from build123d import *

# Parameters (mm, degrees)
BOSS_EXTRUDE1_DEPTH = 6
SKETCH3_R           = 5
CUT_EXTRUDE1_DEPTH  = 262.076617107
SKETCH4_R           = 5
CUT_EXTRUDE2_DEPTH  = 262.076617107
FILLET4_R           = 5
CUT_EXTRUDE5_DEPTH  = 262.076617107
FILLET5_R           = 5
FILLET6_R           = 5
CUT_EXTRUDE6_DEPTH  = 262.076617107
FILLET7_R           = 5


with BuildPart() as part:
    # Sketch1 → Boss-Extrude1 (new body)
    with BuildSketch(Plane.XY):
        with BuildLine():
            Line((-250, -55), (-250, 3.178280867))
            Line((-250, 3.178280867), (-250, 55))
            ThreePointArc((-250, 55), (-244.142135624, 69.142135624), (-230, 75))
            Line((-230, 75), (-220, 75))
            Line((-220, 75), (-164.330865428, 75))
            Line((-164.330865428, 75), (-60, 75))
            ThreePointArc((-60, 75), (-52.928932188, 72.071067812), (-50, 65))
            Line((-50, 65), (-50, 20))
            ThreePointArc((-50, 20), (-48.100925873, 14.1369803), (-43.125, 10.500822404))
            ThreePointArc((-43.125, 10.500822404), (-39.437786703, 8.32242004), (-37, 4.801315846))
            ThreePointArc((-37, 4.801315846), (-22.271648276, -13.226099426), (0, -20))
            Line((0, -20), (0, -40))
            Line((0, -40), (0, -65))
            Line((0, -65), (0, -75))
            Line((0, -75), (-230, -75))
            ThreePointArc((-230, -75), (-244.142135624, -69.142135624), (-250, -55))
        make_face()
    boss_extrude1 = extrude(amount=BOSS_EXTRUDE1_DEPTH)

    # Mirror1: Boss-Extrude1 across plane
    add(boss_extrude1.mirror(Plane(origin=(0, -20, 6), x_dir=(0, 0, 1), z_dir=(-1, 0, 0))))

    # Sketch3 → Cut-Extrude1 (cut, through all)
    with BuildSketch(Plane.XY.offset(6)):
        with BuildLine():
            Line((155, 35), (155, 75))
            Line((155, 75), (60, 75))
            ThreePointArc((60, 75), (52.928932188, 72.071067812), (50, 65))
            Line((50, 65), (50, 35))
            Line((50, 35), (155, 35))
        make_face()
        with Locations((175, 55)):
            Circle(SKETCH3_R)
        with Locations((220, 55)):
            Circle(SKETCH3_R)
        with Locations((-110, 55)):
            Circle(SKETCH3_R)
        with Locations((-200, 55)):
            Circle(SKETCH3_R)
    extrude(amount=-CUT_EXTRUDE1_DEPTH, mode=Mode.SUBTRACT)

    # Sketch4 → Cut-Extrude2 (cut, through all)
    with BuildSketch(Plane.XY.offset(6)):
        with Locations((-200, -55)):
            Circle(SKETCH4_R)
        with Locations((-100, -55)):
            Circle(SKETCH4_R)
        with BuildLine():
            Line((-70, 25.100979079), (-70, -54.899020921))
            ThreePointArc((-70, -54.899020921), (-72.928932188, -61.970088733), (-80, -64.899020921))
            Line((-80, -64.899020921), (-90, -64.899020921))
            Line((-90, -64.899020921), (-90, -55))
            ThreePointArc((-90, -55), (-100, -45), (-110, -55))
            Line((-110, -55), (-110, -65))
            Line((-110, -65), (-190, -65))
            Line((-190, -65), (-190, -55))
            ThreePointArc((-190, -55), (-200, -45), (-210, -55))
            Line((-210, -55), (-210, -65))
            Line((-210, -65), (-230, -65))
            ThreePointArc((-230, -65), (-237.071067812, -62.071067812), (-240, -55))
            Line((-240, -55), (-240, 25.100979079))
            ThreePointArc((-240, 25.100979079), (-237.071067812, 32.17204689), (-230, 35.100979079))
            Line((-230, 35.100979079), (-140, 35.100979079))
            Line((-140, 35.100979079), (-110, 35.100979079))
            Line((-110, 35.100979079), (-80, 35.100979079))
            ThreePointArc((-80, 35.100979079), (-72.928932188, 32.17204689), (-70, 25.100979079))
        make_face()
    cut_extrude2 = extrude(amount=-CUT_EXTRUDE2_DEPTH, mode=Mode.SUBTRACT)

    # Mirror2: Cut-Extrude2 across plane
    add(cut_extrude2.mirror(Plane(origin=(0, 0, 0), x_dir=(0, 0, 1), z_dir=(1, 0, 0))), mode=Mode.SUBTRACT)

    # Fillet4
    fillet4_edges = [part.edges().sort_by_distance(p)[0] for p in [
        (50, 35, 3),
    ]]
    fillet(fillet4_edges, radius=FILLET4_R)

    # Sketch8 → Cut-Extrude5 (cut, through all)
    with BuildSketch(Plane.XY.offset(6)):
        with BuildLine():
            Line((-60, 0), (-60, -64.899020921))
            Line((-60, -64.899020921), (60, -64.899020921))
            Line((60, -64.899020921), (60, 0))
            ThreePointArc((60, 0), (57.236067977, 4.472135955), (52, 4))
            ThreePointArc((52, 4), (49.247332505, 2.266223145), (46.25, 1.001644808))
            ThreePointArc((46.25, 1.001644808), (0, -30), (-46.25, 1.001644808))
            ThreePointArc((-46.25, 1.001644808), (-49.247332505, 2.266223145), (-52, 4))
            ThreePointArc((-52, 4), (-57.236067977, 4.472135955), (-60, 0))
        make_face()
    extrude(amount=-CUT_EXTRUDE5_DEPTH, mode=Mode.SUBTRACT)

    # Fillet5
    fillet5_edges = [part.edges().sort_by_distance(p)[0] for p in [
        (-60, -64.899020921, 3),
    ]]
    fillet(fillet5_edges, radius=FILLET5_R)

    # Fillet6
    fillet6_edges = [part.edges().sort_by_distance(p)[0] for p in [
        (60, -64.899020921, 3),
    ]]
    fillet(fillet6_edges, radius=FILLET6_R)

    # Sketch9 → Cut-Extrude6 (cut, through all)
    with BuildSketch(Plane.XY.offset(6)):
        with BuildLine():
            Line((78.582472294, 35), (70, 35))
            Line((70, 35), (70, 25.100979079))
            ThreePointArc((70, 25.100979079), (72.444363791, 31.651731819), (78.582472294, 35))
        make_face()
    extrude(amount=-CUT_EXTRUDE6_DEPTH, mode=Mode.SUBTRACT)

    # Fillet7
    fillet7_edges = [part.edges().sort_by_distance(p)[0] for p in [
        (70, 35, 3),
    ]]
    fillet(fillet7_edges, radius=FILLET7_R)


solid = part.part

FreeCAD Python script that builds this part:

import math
import FreeCAD as App
import Part
import Sketcher


def edges_at(feature, points):
    """Names of the edges that pass closest to the given points."""
    edges = feature.Shape.Edges
    near = lambda p: min(range(len(edges)), key=lambda i: edges[i].distToShape(Part.Vertex(*p))[0])
    return sorted({f"Edge{near(p) + 1}" for p in points})

doc = App.newDocument("Part")
params = doc.addObject("Spreadsheet::Sheet", "Params")
for row, (alias, value) in enumerate([
    ("sketch1_radius", "20 mm"),
    ("sketch1_radius2", "40 mm"),
    ("sketch1_radius3", "10 mm"),
    ("sketch1_width", "230 mm"),
    ("sketch1_width2", "170 mm"),
    ("pad1_length", "6 mm"),
    ("sketch2_diameter", "10 mm"),
    ("sketch2_radius", "10 mm"),
    ("sketch2_width", "95 mm"),
    ("sketch2_height", "40 mm"),
    ("sketch3_diameter", "10 mm"),
    ("sketch3_radius", "10 mm"),
    ("sketch3_width", "150 mm"),
    ("sketch3_width2", "20 mm"),
    ("fillet_radius", "5 mm"),
    ("sketch4_radius", "5 mm"),
    ("sketch4_radius2", "20 mm"),
    ("sketch4_radius3", "50 mm"),
    ("sketch4_width", "120 mm"),
    ("fillet2_radius", "5 mm"),
    ("fillet3_radius", "5 mm"),
    ("sketch5_radius", "10 mm"),
    ("fillet4_radius", "5 mm"),
], start=1):
    params.set(f"A{row}", alias)
    params.set(f"B{row}", "=" + value)
    params.setAlias(f"B{row}", alias)

body = doc.addObject("PartDesign::Body", "Body")

sketch1 = doc.addObject("Sketcher::SketchObject", "Sketch")
body.addObject(sketch1)
sketch1.AttachmentSupport = (doc.XY_Plane, [""])
sketch1.MapMode = "FlatFace"
sketch1.addGeometry([
    Part.LineSegment(App.Vector(-250, 55, 0), App.Vector(-250, -55, 0)),
    Part.ArcOfCircle(Part.Circle(App.Vector(-230, -55, 0), App.Vector(0, 0, 1), 20), math.radians(180), math.radians(270)),
    Part.LineSegment(App.Vector(-230, -75, 0), App.Vector(0, -75, 0)),
    Part.LineSegment(App.Vector(0, -75, 0), App.Vector(0, -20, 0)),
    Part.ArcOfCircle(Part.Circle(App.Vector(0, 20, 0), App.Vector(0, 0, 1), 40), math.radians(-158), math.radians(-90)),
    Part.ArcOfCircle(Part.Circle(App.Vector(-46, 1, 0), App.Vector(0, 0, 1), 10), math.radians(22), math.radians(72)),
    Part.ArcOfCircle(Part.Circle(App.Vector(-40, 20, 0), App.Vector(0, 0, 1), 10), math.radians(180), math.radians(252)),
    Part.LineSegment(App.Vector(-50, 20, 0), App.Vector(-50, 65, 0)),
    Part.ArcOfCircle(Part.Circle(App.Vector(-60, 65, 0), App.Vector(0, 0, 1), 10), math.radians(0), math.radians(90)),
    Part.LineSegment(App.Vector(-60, 75, 0), App.Vector(-230, 75, 0)),
    Part.ArcOfCircle(Part.Circle(App.Vector(-230, 55, 0), App.Vector(0, 0, 1), 20), math.radians(90), math.radians(180)),
], False)
sketch1.addConstraint([
    Sketcher.Constraint("Tangent", 0, 2, 1, 1),
    Sketcher.Constraint("Tangent", 1, 2, 2, 1),
    Sketcher.Constraint("Coincident", 2, 2, 3, 1),
    Sketcher.Constraint("Coincident", 3, 2, 4, 2),
    Sketcher.Constraint("Tangent", 4, 1, 5, 1),
    Sketcher.Constraint("Tangent", 5, 2, 6, 2),
    Sketcher.Constraint("Tangent", 6, 1, 7, 1),
    Sketcher.Constraint("Tangent", 7, 2, 8, 1),
    Sketcher.Constraint("Tangent", 8, 2, 9, 1),
    Sketcher.Constraint("Tangent", 9, 2, 10, 1),
    Sketcher.Constraint("Tangent", 10, 2, 0, 1),
    Sketcher.Constraint("Vertical", 0),
    Sketcher.Constraint("Horizontal", 2),
    Sketcher.Constraint("Vertical", 3),
    Sketcher.Constraint("Vertical", 7),
    Sketcher.Constraint("Horizontal", 9),
    Sketcher.Constraint("Equal", 5, 6),
    Sketcher.Constraint("Equal", 6, 8),
    Sketcher.Constraint("Equal", 1, 10),
    Sketcher.Constraint("PointOnObject", 4, 3, -2),
    Sketcher.Constraint("PointOnObject", 2, 2, -2),
    Sketcher.Constraint("Horizontal", 4, 3, 6, 3),
    Sketcher.Constraint("Radius", 1, 20.0),
    Sketcher.Constraint("Radius", 4, 40.0),
    Sketcher.Constraint("Radius", 5, 10.0),
    Sketcher.Constraint("DistanceX", 2, 1, 2, 2, 230.0),
    Sketcher.Constraint("DistanceX", 9, 2, 9, 1, 170.0),
    Sketcher.Constraint("DistanceY", 0, 2, 0, 1, 110.0),
    Sketcher.Constraint("DistanceY", 3, 1, 3, 2, 55.0),
    Sketcher.Constraint("DistanceY", 1, 3, -1, 1, 55.0),
])
sketch1.setExpression("Constraints[22]", "Params.sketch1_radius")
sketch1.setExpression("Constraints[23]", "Params.sketch1_radius2")
sketch1.setExpression("Constraints[24]", "Params.sketch1_radius3")
sketch1.setExpression("Constraints[25]", "Params.sketch1_width")
sketch1.setExpression("Constraints[26]", "Params.sketch1_width2")
pad1 = doc.addObject("PartDesign::Pad", "Pad")
body.addObject(pad1)
pad1.Profile = sketch1
pad1.setExpression("Length", "Params.pad1_length")
doc.recompute()

mirrored = doc.addObject("PartDesign::Mirrored", "Mirrored")
body.addObject(mirrored)
mirrored.Originals = [pad1]
mirrored.MirrorPlane = (doc.YZ_Plane, [""])
body.Tip = mirrored

sketch2 = doc.addObject("Sketcher::SketchObject", "Sketch001")
body.addObject(sketch2)
sketch2.AttachmentSupport = (doc.XY_Plane, [""])
sketch2.MapMode = "FlatFace"
sketch2.AttachmentOffset = App.Placement(App.Vector(0, 0, 6), App.Rotation())
sketch2.addGeometry([
    Part.LineSegment(App.Vector(155, 35, 0), App.Vector(155, 75, 0)),
    Part.LineSegment(App.Vector(155, 75, 0), App.Vector(60, 75, 0)),
    Part.ArcOfCircle(Part.Circle(App.Vector(60, 65, 0), App.Vector(0, 0, 1), 10), math.radians(90), math.radians(180)),
    Part.LineSegment(App.Vector(50, 65, 0), App.Vector(50, 35, 0)),
    Part.LineSegment(App.Vector(50, 35, 0), App.Vector(155, 35, 0)),
    Part.Circle(App.Vector(175, 55, 0), App.Vector(0, 0, 1), 5),
    Part.Circle(App.Vector(220, 55, 0), App.Vector(0, 0, 1), 5),
    Part.Circle(App.Vector(-110, 55, 0), App.Vector(0, 0, 1), 5),
    Part.Circle(App.Vector(-200, 55, 0), App.Vector(0, 0, 1), 5),
], False)
sketch2.addConstraint([
    Sketcher.Constraint("Coincident", 0, 2, 1, 1),
    Sketcher.Constraint("Tangent", 1, 2, 2, 1),
    Sketcher.Constraint("Tangent", 2, 2, 3, 1),
    Sketcher.Constraint("Coincident", 3, 2, 4, 1),
    Sketcher.Constraint("Coincident", 4, 2, 0, 1),
    Sketcher.Constraint("Vertical", 0),
    Sketcher.Constraint("Horizontal", 1),
    Sketcher.Constraint("Vertical", 3),
    Sketcher.Constraint("Horizontal", 4),
    Sketcher.Constraint("Equal", 5, 6),
    Sketcher.Constraint("Equal", 6, 7),
    Sketcher.Constraint("Equal", 7, 8),
    Sketcher.Constraint("Horizontal", 5, 3, 6, 3),
    Sketcher.Constraint("Horizontal", 6, 3, 7, 3),
    Sketcher.Constraint("Horizontal", 7, 3, 8, 3),
    Sketcher.Constraint("Diameter", 5, 10.0),
    Sketcher.Constraint("Radius", 2, 10.0),
    Sketcher.Constraint("DistanceX", 1, 2, 1, 1, 95.0),
    Sketcher.Constraint("DistanceY", 0, 1, 0, 2, 40.0),
    Sketcher.Constraint("DistanceX", -1, 1, 2, 3, 60.0),
    Sketcher.Constraint("DistanceY", -1, 1, 2, 3, 65.0),
    Sketcher.Constraint("DistanceX", -1, 1, 5, 3, 175.0),
    Sketcher.Constraint("DistanceY", -1, 1, 5, 3, 55.0),
    Sketcher.Constraint("DistanceX", -1, 1, 6, 3, 220.0),
    Sketcher.Constraint("DistanceX", 7, 3, -1, 1, 110.0),
    Sketcher.Constraint("DistanceX", 8, 3, -1, 1, 200.0),
])
sketch2.setExpression("Constraints[15]", "Params.sketch2_diameter")
sketch2.setExpression("Constraints[16]", "Params.sketch2_radius")
sketch2.setExpression("Constraints[17]", "Params.sketch2_width")
sketch2.setExpression("Constraints[18]", "Params.sketch2_height")
pocket1 = doc.addObject("PartDesign::Pocket", "Pocket")
body.addObject(pocket1)
pocket1.Profile = sketch2
pocket1.Type = "ThroughAll"

sketch3 = doc.addObject("Sketcher::SketchObject", "Sketch002")
body.addObject(sketch3)
sketch3.AttachmentSupport = (doc.XY_Plane, [""])
sketch3.MapMode = "FlatFace"
sketch3.AttachmentOffset = App.Placement(App.Vector(0, 0, 6), App.Rotation())
sketch3.addGeometry([
    Part.Circle(App.Vector(-200, -55, 0), App.Vector(0, 0, 1), 5),
    Part.Circle(App.Vector(-100, -55, 0), App.Vector(0, 0, 1), 5),
    Part.LineSegment(App.Vector(-70, -55, 0), App.Vector(-70, 25, 0)),
    Part.ArcOfCircle(Part.Circle(App.Vector(-80, 25, 0), App.Vector(0, 0, 1), 10), math.radians(0), math.radians(90)),
    Part.LineSegment(App.Vector(-80, 35, 0), App.Vector(-230, 35, 0)),
    Part.ArcOfCircle(Part.Circle(App.Vector(-230, 25, 0), App.Vector(0, 0, 1), 10), math.radians(90), math.radians(180)),
    Part.LineSegment(App.Vector(-240, 25, 0), App.Vector(-240, -55, 0)),
    Part.ArcOfCircle(Part.Circle(App.Vector(-230, -55, 0), App.Vector(0, 0, 1), 10), math.radians(180), math.radians(270)),
    Part.LineSegment(App.Vector(-230, -65, 0), App.Vector(-210, -65, 0)),
    Part.LineSegment(App.Vector(-210, -65, 0), App.Vector(-210, -55, 0)),
    Part.ArcOfCircle(Part.Circle(App.Vector(-200, -55, 0), App.Vector(0, 0, 1), 10), math.radians(0), math.radians(180)),
    Part.LineSegment(App.Vector(-190, -55, 0), App.Vector(-190, -65, 0)),
    Part.LineSegment(App.Vector(-190, -65, 0), App.Vector(-110, -65, 0)),
    Part.LineSegment(App.Vector(-110, -65, 0), App.Vector(-110, -55, 0)),
    Part.ArcOfCircle(Part.Circle(App.Vector(-100, -55, 0), App.Vector(0, 0, 1), 10), math.radians(0), math.radians(180)),
    Part.LineSegment(App.Vector(-90, -55, 0), App.Vector(-90, -65, 0)),
    Part.LineSegment(App.Vector(-90, -65, 0), App.Vector(-80, -65, 0)),
    Part.ArcOfCircle(Part.Circle(App.Vector(-80, -55, 0), App.Vector(0, 0, 1), 10), math.radians(-90), math.radians(0)),
], False)
sketch3.addConstraint([
    Sketcher.Constraint("Tangent", 2, 2, 3, 1),
    Sketcher.Constraint("Tangent", 3, 2, 4, 1),
    Sketcher.Constraint("Tangent", 4, 2, 5, 1),
    Sketcher.Constraint("Tangent", 5, 2, 6, 1),
    Sketcher.Constraint("Tangent", 6, 2, 7, 1),
    Sketcher.Constraint("Tangent", 7, 2, 8, 1),
    Sketcher.Constraint("Coincident", 8, 2, 9, 1),
    Sketcher.Constraint("Tangent", 9, 2, 10, 2),
    Sketcher.Constraint("Tangent", 10, 1, 11, 1),
    Sketcher.Constraint("Coincident", 11, 2, 12, 1),
    Sketcher.Constraint("Coincident", 12, 2, 13, 1),
    Sketcher.Constraint("Tangent", 13, 2, 14, 2),
    Sketcher.Constraint("Tangent", 14, 1, 15, 1),
    Sketcher.Constraint("Coincident", 15, 2, 16, 1),
    Sketcher.Constraint("Tangent", 16, 2, 17, 1),
    Sketcher.Constraint("Tangent", 17, 2, 2, 1),
    Sketcher.Constraint("Vertical", 2),
    Sketcher.Constraint("Horizontal", 4),
    Sketcher.Constraint("Vertical", 6),
    Sketcher.Constraint("Horizontal", 8),
    Sketcher.Constraint("Vertical", 9),
    Sketcher.Constraint("Vertical", 11),
    Sketcher.Constraint("Horizontal", 12),
    Sketcher.Constraint("Vertical", 13),
    Sketcher.Constraint("Vertical", 15),
    Sketcher.Constraint("Horizontal", 16),
    Sketcher.Constraint("Coincident", 10, 3, 0, 3),
    Sketcher.Constraint("Coincident", 14, 3, 1, 3),
    Sketcher.Constraint("Equal", 0, 1),
    Sketcher.Constraint("Equal", 3, 5),
    Sketcher.Constraint("Equal", 5, 7),
    Sketcher.Constraint("Equal", 7, 10),
    Sketcher.Constraint("Equal", 10, 14),
    Sketcher.Constraint("Equal", 14, 17),
    Sketcher.Constraint("Horizontal", 0, 3, 1, 3),
    Sketcher.Constraint("Horizontal", 1, 3, 7, 3),
    Sketcher.Constraint("Horizontal", 8, 2, 11, 2),
    Sketcher.Constraint("Equal", 12, 2),
    Sketcher.Constraint("Equal", 16, 9),
    Sketcher.Constraint("Diameter", 0, 10.0),
    Sketcher.Constraint("Radius", 3, 10.0),
    Sketcher.Constraint("DistanceX", 4, 2, 4, 1, 150.0),
    Sketcher.Constraint("DistanceX", 8, 1, 8, 2, 20.0),
    Sketcher.Constraint("DistanceX", 0, 3, -1, 1, 200.0),
    Sketcher.Constraint("DistanceY", 0, 3, -1, 1, 55.0),
    Sketcher.Constraint("DistanceY", 6, 2, 6, 1, 80.100979),
])
sketch3.setExpression("Constraints[39]", "Params.sketch3_diameter")
sketch3.setExpression("Constraints[40]", "Params.sketch3_radius")
sketch3.setExpression("Constraints[41]", "Params.sketch3_width")
sketch3.setExpression("Constraints[42]", "Params.sketch3_width2")
pocket2 = doc.addObject("PartDesign::Pocket", "Pocket001")
body.addObject(pocket2)
pocket2.Profile = sketch3
pocket2.Type = "ThroughAll"
doc.recompute()

mirrored2 = doc.addObject("PartDesign::Mirrored", "Mirrored001")
body.addObject(mirrored2)
mirrored2.Originals = [pocket2]
mirrored2.MirrorPlane = (doc.YZ_Plane, [""])
body.Tip = mirrored2
doc.recompute()

fillet = doc.addObject("PartDesign::Fillet", "Fillet")
body.addObject(fillet)
fillet.Base = (mirrored2, edges_at(mirrored2, [(50, 35, 3)]))
fillet.setExpression("Radius", "Params.fillet_radius")

sketch4 = doc.addObject("Sketcher::SketchObject", "Sketch003")
body.addObject(sketch4)
sketch4.AttachmentSupport = (doc.XY_Plane, [""])
sketch4.MapMode = "FlatFace"
sketch4.AttachmentOffset = App.Placement(App.Vector(0, 0, 6), App.Rotation())
sketch4.addGeometry([
    Part.LineSegment(App.Vector(-60, 0, 0), App.Vector(-60, -65, 0)),
    Part.LineSegment(App.Vector(-60, -65, 0), App.Vector(60, -65, 0)),
    Part.LineSegment(App.Vector(60, -65, 0), App.Vector(60, 0, 0)),
    Part.ArcOfCircle(Part.Circle(App.Vector(55, 0, 0), App.Vector(0, 0, 1), 5), math.radians(0), math.radians(127)),
    Part.ArcOfCircle(Part.Circle(App.Vector(40, 20, 0), App.Vector(0, 0, 1), 20), math.radians(-71.79), math.radians(-53.13)),
    Part.ArcOfCircle(Part.Circle(App.Vector(0, 20, 0), App.Vector(0, 0, 1), 50), math.radians(-158), math.radians(-22)),
    Part.ArcOfCircle(Part.Circle(App.Vector(-40, 20, 0), App.Vector(0, 0, 1), 20), math.radians(-126.87), math.radians(-108.21)),
    Part.ArcOfCircle(Part.Circle(App.Vector(-55, 0, 0), App.Vector(0, 0, 1), 5), math.radians(53), math.radians(180)),
], False)
sketch4.addConstraint([
    Sketcher.Constraint("Coincident", 0, 2, 1, 1),
    Sketcher.Constraint("Coincident", 1, 2, 2, 1),
    Sketcher.Constraint("Tangent", 2, 2, 3, 1),
    Sketcher.Constraint("Tangent", 3, 2, 4, 2),
    Sketcher.Constraint("Coincident", 4, 1, 5, 2),
    Sketcher.Constraint("Coincident", 5, 1, 6, 2),
    Sketcher.Constraint("Tangent", 6, 1, 7, 1),
    Sketcher.Constraint("Tangent", 7, 2, 0, 1),
    Sketcher.Constraint("Vertical", 0),
    Sketcher.Constraint("Horizontal", 1),
    Sketcher.Constraint("Vertical", 2),
    Sketcher.Constraint("Equal", 4, 6),
    Sketcher.Constraint("Equal", 3, 7),
    Sketcher.Constraint("Symmetric", 3, 3, 7, 3, -1, 1),
    Sketcher.Constraint("Symmetric", 4, 3, 6, 3, -2),
    Sketcher.Constraint("PointOnObject", 5, 3, -2),
    Sketcher.Constraint("Horizontal", 4, 3, 5, 3),
    Sketcher.Constraint("Radius", 3, 5.0),
    Sketcher.Constraint("Radius", 4, 20.0),
    Sketcher.Constraint("Radius", 5, 50.0),
    Sketcher.Constraint("DistanceX", 1, 1, 1, 2, 120.0),
    Sketcher.Constraint("DistanceX", -1, 1, 4, 3, 40.0),
    Sketcher.Constraint("DistanceY", 0, 2, 0, 1, 64.899021),
])
sketch4.setExpression("Constraints[17]", "Params.sketch4_radius")
sketch4.setExpression("Constraints[18]", "Params.sketch4_radius2")
sketch4.setExpression("Constraints[19]", "Params.sketch4_radius3")
sketch4.setExpression("Constraints[20]", "Params.sketch4_width")
pocket3 = doc.addObject("PartDesign::Pocket", "Pocket002")
body.addObject(pocket3)
pocket3.Profile = sketch4
pocket3.Type = "ThroughAll"
doc.recompute()

fillet2 = doc.addObject("PartDesign::Fillet", "Fillet001")
body.addObject(fillet2)
fillet2.Base = (pocket3, edges_at(pocket3, [(-60, -64.899, 3)]))
fillet2.setExpression("Radius", "Params.fillet2_radius")
doc.recompute()

fillet3 = doc.addObject("PartDesign::Fillet", "Fillet002")
body.addObject(fillet3)
fillet3.Base = (fillet2, edges_at(fillet2, [(60, -64.899, 3)]))
fillet3.setExpression("Radius", "Params.fillet3_radius")

sketch5 = doc.addObject("Sketcher::SketchObject", "Sketch004")
body.addObject(sketch5)
sketch5.AttachmentSupport = (doc.XY_Plane, [""])
sketch5.MapMode = "FlatFace"
sketch5.AttachmentOffset = App.Placement(App.Vector(0, 0, 6), App.Rotation())
sketch5.addGeometry([
    Part.LineSegment(App.Vector(79, 35, 0), App.Vector(70, 35, 0)),
    Part.LineSegment(App.Vector(70, 35, 0), App.Vector(70, 25, 0)),
    Part.ArcOfCircle(Part.Circle(App.Vector(80, 25, 0), App.Vector(0, 0, 1), 10), math.radians(98), math.radians(180)),
], False)
sketch5.addConstraint([
    Sketcher.Constraint("Coincident", 0, 2, 1, 1),
    Sketcher.Constraint("Tangent", 1, 2, 2, 2),
    Sketcher.Constraint("Coincident", 2, 1, 0, 1),
    Sketcher.Constraint("Horizontal", 0),
    Sketcher.Constraint("Vertical", 1),
    Sketcher.Constraint("Radius", 2, 10.0),
    Sketcher.Constraint("DistanceX", -1, 1, 2, 3, 80.0),
    Sketcher.Constraint("DistanceY", -1, 1, 0, 2, 35.0),
    Sketcher.Constraint("DistanceY", 1, 2, 1, 1, 9.899021),
])
sketch5.setExpression("Constraints[5]", "Params.sketch5_radius")
pocket4 = doc.addObject("PartDesign::Pocket", "Pocket003")
body.addObject(pocket4)
pocket4.Profile = sketch5
pocket4.Type = "ThroughAll"
doc.recompute()

fillet4 = doc.addObject("PartDesign::Fillet", "Fillet003")
body.addObject(fillet4)
fillet4.Base = (pocket4, edges_at(pocket4, [(70, 35, 3)]))
fillet4.setExpression("Radius", "Params.fillet4_radius")

doc.recompute()
